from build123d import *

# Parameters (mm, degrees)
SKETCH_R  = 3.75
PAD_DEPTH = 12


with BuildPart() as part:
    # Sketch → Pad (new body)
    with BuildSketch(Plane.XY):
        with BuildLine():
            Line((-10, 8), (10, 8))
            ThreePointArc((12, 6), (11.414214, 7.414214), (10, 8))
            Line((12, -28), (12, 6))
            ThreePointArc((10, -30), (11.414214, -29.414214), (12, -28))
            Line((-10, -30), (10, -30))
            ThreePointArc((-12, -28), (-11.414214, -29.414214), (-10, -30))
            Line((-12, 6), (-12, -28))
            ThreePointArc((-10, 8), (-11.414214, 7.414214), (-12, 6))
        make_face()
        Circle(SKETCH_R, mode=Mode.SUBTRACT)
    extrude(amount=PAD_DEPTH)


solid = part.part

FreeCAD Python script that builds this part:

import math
import FreeCAD as App
import Part
import Sketcher

V = App.Vector

doc = App.newDocument("Part")
params = doc.addObject("Spreadsheet::Sheet", "Params")
for row, (alias, value) in enumerate([
    ("sketch1_radius", "1.999999 mm"),
    ("sketch1_diameter", "7.5 mm"),
    ("sketch1_width", "20 mm"),
    ("sketch1_height", "34 mm"),
    ("pad1_length", "12 mm"),
], start=1):
    params.set(f"A{row}", alias)
    params.set(f"B{row}", "=" + value)
    params.setAlias(f"B{row}", alias)

body = doc.addObject("PartDesign::Body", "Body")

# Sketch on XY plane
sketch1 = body.newObject("Sketcher::SketchObject", "Sketch")
sketch1.AttachmentSupport = (doc.getObject("XY_Plane"), [""])
sketch1.MapMode = "FlatFace"
sketch1.addGeometry(Part.LineSegment(V(10, 8, 0), V(-10, 8, 0)), False)
sketch1.addGeometry(Part.ArcOfCircle(Part.Circle(V(-10.000001, 6.000001, 0), V(0, 0, 1), 1.999999), math.radians(89.999957), math.radians(180.000043)), False)
sketch1.addGeometry(Part.LineSegment(V(-12, 6, 0), V(-12, -28, 0)), False)
sketch1.addGeometry(Part.ArcOfCircle(Part.Circle(V(-10.000001, -28.000001, 0), V(0, 0, 1), 1.999999), math.radians(179.999957), math.radians(270.000043)), False)
sketch1.addGeometry(Part.LineSegment(V(-10, -30, 0), V(10, -30, 0)), False)
sketch1.addGeometry(Part.ArcOfCircle(Part.Circle(V(10.000001, -28.000001, 0), V(0, 0, 1), 1.999999), math.radians(-90.000043), math.radians(0.000043)), False)
sketch1.addGeometry(Part.LineSegment(V(12, -28, 0), V(12, 6, 0)), False)
sketch1.addGeometry(Part.ArcOfCircle(Part.Circle(V(10.000001, 6.000001, 0), V(0, 0, 1), 1.999999), math.radians(-0.000043), math.radians(90.000043)), False)
sketch1.addGeometry(Part.Circle(V(0, 0, 0), V(0, 0, 1), 3.75), False)
sketch1.addConstraint(Sketcher.Constraint("Tangent", 0, 2, 1, 1))
sketch1.addConstraint(Sketcher.Constraint("Tangent", 1, 2, 2, 1))
sketch1.addConstraint(Sketcher.Constraint("Tangent", 2, 2, 3, 1))
sketch1.addConstraint(Sketcher.Constraint("Tangent", 3, 2, 4, 1))
sketch1.addConstraint(Sketcher.Constraint("Tangent", 4, 2, 5, 1))
sketch1.addConstraint(Sketcher.Constraint("Tangent", 5, 2, 6, 1))
sketch1.addConstraint(Sketcher.Constraint("Tangent", 6, 2, 7, 1))
sketch1.addConstraint(Sketcher.Constraint("Tangent", 7, 2, 0, 1))
sketch1.addConstraint(Sketcher.Constraint("Horizontal", 0))
sketch1.addConstraint(Sketcher.Constraint("Vertical", 2))
sketch1.addConstraint(Sketcher.Constraint("Horizontal", 4))
sketch1.addConstraint(Sketcher.Constraint("Vertical", 6))
sketch1.addConstraint(Sketcher.Constraint("Coincident", 8, 3, -1, 1))
sketch1.addConstraint(Sketcher.Constraint("Equal", 1, 3))
sketch1.addConstraint(Sketcher.Constraint("Equal", 3, 5))
sketch1.addConstraint(Sketcher.Constraint("Equal", 5, 7))
sketch1.addConstraint(Sketcher.Constraint("Radius", 1, 1.999999))
sketch1.addConstraint(Sketcher.Constraint("Diameter", 8, 7.5))
sketch1.addConstraint(Sketcher.Constraint("DistanceX", 0, 2, 0, 1, 20.0))
sketch1.addConstraint(Sketcher.Constraint("DistanceY", 2, 2, 2, 1, 34.0))
sketch1.addConstraint(Sketcher.Constraint("DistanceX", 1, 3, -1, 1, 10.000001))
sketch1.addConstraint(Sketcher.Constraint("DistanceY", -1, 1, 1, 3, 6.000001))
sketch1.setExpression("Constraints[16]", "Params.sketch1_radius")
sketch1.setExpression("Constraints[17]", "Params.sketch1_diameter")
sketch1.setExpression("Constraints[18]", "Params.sketch1_width")
sketch1.setExpression("Constraints[19]", "Params.sketch1_height")
pad1 = body.newObject("PartDesign::Pad", "Pad")
pad1.Profile = sketch1
pad1.setExpression("Length", "Params.pad1_length")

doc.recompute()
